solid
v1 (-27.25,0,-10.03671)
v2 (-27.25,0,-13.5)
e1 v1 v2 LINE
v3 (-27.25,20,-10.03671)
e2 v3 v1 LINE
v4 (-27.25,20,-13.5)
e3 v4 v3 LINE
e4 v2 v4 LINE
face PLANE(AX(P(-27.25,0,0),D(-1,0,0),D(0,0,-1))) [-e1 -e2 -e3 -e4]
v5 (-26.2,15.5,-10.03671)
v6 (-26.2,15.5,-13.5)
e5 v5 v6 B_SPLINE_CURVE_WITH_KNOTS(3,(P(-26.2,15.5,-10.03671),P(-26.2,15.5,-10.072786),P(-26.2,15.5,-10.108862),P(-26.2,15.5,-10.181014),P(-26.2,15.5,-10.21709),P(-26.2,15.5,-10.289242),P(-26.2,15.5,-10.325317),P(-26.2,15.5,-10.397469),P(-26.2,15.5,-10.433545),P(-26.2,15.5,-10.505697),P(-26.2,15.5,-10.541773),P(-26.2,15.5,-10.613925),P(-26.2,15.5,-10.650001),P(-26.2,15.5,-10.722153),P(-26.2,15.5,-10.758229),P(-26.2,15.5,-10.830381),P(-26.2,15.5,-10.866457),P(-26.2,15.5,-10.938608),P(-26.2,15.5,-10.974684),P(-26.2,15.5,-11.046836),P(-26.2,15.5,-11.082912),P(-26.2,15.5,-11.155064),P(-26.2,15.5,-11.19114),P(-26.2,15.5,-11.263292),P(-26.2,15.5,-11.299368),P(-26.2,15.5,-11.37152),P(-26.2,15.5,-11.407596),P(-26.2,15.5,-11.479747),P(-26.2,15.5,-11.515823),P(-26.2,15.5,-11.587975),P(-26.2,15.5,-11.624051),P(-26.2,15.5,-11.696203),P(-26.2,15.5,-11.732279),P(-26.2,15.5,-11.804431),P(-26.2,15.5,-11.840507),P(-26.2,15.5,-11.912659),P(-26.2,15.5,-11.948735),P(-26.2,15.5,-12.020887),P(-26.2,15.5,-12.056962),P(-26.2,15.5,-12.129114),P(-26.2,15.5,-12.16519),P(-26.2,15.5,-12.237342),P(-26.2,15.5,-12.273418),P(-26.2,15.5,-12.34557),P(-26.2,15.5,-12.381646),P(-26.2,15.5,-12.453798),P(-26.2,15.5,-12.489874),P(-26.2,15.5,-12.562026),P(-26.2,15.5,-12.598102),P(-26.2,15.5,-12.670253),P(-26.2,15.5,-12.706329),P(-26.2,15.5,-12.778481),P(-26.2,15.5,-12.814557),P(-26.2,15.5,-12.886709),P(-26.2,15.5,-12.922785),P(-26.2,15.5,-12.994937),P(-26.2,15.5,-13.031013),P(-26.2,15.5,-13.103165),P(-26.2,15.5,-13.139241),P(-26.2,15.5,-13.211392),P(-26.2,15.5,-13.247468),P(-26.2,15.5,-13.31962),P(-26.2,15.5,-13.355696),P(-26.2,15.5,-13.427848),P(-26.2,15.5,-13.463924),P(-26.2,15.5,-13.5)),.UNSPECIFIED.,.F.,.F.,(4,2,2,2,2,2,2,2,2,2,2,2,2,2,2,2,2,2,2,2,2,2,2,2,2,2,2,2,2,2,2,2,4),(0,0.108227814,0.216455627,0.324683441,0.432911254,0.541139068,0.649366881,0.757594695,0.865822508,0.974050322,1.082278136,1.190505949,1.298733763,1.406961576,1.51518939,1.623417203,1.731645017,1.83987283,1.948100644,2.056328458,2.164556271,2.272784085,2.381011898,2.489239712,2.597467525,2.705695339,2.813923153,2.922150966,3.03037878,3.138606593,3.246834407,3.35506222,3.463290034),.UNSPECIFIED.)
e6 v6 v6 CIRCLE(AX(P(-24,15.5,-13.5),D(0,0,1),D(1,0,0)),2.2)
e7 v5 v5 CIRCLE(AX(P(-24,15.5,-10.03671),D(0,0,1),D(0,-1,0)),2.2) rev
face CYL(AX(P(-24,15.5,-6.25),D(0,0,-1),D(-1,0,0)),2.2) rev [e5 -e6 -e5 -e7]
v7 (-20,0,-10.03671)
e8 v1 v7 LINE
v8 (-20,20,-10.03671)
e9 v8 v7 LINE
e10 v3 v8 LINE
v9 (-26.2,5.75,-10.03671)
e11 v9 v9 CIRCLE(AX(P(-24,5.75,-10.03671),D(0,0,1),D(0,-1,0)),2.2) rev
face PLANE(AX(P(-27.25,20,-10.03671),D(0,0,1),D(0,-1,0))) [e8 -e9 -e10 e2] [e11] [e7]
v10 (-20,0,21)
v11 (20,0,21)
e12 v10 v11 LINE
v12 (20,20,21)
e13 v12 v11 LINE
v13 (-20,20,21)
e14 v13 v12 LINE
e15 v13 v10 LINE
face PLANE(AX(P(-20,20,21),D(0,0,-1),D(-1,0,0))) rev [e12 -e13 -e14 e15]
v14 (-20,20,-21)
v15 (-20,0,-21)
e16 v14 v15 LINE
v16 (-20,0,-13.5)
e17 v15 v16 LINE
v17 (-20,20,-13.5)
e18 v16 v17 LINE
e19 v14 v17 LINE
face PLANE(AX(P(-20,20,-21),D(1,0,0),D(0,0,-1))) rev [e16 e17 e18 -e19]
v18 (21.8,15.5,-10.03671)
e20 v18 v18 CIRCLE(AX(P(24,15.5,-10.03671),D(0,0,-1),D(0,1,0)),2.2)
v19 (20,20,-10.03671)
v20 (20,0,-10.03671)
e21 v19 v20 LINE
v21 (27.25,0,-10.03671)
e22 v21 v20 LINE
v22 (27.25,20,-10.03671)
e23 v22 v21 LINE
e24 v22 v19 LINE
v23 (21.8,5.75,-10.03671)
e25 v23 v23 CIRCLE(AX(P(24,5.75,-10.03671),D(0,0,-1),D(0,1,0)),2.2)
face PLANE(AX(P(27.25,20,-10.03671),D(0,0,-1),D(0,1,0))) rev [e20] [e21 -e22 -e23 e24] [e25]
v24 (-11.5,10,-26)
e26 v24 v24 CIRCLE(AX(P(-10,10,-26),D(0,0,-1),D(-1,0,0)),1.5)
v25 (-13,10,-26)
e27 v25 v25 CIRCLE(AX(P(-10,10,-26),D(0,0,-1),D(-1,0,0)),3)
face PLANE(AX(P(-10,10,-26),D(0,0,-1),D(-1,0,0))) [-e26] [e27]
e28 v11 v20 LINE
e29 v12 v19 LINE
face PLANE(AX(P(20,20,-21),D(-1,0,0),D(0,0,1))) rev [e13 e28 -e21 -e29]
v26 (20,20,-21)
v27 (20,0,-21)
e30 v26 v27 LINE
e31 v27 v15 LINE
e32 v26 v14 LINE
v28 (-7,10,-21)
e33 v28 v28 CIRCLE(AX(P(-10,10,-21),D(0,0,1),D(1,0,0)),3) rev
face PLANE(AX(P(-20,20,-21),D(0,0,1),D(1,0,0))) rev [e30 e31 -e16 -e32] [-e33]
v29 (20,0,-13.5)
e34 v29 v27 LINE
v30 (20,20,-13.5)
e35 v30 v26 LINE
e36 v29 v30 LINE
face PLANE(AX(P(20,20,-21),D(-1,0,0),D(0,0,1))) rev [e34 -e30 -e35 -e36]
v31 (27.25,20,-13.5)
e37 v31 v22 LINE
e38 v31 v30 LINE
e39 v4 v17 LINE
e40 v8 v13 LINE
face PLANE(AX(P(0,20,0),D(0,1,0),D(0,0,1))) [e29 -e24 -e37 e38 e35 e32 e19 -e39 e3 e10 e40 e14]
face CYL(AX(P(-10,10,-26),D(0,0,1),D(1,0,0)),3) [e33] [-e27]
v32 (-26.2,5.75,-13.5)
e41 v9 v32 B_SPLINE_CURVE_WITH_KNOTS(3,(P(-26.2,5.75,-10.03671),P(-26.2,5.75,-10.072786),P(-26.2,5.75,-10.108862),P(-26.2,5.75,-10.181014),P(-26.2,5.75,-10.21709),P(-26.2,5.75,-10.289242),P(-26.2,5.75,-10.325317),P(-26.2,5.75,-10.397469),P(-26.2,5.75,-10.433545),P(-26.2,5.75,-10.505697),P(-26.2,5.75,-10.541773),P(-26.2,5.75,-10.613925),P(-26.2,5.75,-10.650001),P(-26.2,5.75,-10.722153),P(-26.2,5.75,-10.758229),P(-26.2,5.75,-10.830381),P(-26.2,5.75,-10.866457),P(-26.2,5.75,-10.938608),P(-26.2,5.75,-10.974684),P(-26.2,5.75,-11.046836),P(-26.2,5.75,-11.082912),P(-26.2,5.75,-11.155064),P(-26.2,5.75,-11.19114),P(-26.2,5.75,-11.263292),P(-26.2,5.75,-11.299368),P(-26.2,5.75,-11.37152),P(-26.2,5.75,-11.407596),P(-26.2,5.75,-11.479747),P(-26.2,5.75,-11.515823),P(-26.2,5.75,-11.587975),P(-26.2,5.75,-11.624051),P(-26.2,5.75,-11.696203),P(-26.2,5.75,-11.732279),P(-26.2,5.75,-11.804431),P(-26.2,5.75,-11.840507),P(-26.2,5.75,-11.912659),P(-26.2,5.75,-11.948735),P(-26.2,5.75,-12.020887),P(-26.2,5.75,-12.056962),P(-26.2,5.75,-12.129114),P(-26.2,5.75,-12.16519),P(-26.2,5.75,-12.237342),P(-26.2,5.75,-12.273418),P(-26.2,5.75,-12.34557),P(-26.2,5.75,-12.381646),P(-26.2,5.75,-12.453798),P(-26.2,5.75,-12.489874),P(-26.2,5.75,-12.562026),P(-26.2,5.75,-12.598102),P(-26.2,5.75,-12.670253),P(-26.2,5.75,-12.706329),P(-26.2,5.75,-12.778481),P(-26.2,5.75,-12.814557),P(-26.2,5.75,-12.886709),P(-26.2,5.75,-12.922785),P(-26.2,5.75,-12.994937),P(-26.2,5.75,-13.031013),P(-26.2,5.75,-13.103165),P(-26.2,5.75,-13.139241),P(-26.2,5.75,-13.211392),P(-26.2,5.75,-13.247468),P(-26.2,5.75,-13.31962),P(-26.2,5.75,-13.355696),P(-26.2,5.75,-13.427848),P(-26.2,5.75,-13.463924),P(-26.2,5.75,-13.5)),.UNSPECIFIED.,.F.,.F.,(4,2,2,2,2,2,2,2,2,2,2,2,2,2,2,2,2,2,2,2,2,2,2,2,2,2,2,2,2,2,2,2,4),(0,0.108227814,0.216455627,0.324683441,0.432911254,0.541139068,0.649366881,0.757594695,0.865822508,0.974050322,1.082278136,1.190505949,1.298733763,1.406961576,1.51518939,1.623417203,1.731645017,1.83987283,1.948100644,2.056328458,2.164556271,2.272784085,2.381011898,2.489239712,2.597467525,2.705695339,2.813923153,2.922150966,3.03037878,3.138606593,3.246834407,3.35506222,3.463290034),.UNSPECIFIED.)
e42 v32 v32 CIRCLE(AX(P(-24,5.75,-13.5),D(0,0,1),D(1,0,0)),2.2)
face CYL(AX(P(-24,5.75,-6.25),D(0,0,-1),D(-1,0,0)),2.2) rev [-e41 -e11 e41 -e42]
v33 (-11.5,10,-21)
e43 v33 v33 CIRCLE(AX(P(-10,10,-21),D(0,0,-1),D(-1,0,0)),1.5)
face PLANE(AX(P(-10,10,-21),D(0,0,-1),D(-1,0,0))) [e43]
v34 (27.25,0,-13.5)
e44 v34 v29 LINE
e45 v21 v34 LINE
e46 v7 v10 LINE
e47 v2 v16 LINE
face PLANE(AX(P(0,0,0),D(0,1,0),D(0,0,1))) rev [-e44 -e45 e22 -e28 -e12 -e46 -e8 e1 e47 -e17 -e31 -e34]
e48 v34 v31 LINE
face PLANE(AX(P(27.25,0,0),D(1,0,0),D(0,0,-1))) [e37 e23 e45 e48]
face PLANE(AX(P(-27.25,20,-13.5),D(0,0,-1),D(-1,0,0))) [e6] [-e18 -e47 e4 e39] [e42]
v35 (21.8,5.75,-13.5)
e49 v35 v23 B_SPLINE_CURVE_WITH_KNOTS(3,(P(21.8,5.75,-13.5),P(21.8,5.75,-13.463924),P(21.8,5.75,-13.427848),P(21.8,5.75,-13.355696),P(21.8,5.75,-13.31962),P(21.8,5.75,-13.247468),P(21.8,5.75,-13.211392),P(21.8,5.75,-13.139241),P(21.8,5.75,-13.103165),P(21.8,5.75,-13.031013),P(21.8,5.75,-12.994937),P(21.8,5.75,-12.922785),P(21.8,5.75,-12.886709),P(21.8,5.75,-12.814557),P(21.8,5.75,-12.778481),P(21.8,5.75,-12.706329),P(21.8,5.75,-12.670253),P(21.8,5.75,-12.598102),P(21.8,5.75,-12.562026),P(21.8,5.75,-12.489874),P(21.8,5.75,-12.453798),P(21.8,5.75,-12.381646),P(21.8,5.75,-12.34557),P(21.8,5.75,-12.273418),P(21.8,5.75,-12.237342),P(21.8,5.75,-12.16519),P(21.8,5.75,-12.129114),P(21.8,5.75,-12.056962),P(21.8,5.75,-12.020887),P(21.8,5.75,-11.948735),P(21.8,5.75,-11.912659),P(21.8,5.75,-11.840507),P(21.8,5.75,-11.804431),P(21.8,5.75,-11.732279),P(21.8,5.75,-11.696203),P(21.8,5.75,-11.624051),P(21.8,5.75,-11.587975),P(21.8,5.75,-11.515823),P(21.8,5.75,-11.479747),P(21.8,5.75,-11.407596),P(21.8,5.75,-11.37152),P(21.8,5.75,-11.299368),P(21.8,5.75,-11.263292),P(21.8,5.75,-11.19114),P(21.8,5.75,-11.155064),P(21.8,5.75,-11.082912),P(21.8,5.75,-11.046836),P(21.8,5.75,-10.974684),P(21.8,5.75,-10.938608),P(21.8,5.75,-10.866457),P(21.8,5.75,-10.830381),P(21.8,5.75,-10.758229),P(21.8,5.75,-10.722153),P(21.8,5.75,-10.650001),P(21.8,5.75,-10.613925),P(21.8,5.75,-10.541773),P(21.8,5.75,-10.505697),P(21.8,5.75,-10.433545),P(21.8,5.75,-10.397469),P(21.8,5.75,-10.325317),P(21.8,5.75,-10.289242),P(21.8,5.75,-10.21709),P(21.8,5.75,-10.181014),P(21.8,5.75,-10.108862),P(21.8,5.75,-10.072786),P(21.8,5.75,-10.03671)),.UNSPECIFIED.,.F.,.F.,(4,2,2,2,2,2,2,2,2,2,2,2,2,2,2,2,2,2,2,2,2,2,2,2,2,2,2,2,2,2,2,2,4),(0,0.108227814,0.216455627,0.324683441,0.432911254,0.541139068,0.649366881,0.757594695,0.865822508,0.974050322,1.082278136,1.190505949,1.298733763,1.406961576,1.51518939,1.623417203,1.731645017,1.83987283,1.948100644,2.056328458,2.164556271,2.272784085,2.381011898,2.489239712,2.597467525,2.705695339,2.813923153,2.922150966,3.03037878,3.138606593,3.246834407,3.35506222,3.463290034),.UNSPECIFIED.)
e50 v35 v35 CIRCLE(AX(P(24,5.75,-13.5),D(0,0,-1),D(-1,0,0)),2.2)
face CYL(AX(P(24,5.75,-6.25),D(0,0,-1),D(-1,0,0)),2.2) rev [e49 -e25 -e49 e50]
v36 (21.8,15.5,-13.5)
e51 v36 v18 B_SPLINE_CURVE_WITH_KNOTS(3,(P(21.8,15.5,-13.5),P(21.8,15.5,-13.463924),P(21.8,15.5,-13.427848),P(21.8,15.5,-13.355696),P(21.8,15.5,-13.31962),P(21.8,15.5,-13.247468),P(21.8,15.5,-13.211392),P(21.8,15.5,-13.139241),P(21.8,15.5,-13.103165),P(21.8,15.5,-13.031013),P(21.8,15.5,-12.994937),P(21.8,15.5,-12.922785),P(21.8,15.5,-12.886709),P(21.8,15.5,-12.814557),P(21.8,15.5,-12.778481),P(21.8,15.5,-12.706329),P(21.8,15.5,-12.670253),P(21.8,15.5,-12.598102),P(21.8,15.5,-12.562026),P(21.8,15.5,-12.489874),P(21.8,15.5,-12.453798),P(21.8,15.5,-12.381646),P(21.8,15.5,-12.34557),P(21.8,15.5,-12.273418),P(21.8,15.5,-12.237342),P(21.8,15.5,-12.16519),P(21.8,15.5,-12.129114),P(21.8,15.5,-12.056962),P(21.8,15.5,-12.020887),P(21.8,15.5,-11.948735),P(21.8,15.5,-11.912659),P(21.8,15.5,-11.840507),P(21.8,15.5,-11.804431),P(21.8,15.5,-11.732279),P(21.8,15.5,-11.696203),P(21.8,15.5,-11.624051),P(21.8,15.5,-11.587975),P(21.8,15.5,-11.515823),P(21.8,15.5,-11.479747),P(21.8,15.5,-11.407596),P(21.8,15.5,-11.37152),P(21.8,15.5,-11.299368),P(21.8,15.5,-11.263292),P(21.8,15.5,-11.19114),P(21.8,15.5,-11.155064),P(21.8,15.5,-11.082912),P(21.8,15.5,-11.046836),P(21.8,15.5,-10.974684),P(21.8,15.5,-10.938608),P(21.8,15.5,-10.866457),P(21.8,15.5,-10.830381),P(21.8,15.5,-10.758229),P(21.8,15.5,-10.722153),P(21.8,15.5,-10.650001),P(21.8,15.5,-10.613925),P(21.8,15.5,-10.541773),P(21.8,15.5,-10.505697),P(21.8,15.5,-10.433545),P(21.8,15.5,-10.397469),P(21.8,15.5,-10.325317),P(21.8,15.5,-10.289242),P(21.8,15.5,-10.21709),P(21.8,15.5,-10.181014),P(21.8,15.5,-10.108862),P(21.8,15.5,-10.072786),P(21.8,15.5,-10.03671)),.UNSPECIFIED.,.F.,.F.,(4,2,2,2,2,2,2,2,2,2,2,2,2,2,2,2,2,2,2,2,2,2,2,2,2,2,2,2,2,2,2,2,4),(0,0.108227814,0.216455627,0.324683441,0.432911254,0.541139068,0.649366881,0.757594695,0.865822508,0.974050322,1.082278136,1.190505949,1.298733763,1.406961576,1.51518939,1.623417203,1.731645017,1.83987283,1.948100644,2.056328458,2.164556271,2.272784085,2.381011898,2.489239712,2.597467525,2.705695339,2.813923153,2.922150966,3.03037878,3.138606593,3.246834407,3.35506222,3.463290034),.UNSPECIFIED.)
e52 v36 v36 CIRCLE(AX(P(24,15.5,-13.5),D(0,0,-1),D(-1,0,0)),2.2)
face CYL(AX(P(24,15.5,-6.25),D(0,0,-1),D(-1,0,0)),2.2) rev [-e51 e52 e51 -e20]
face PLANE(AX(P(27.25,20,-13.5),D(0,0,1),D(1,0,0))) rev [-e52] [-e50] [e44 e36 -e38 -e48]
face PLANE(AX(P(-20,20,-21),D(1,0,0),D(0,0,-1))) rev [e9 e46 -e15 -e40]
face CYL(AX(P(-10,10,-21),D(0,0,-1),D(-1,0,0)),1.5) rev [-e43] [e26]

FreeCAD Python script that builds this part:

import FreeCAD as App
import Part
import Sketcher
from FreeCAD import Vector

doc = App.newDocument("Part")
body = doc.addObject("PartDesign::Body", "Body")

sketch1 = body.newObject("Sketcher::SketchObject", "Sketch")
sketch1.AttachmentSupport = (doc.getObject("XZ_Plane"), [""])
sketch1.MapMode = "FlatFace"
sketch1.addGeometry([
    Part.LineSegment(Vector(-20, -21, 0), Vector(-20, 21, 0)),
    Part.LineSegment(Vector(-20, 21, 0), Vector(20, 21, 0)),
    Part.LineSegment(Vector(20, 21, 0), Vector(20, -21, 0)),
    Part.LineSegment(Vector(20, -21, 0), Vector(-20, -21, 0)),
], False)
sketch1.addConstraint([
    Sketcher.Constraint("Coincident", 0, 2, 1, 1),
    Sketcher.Constraint("Coincident", 1, 2, 2, 1),
    Sketcher.Constraint("Coincident", 2, 2, 3, 1),
    Sketcher.Constraint("Coincident", 3, 2, 0, 1),
    Sketcher.Constraint("Vertical", 0),
    Sketcher.Constraint("Horizontal", 1),
    Sketcher.Constraint("Vertical", 2),
    Sketcher.Constraint("Horizontal", 3),
    Sketcher.Constraint("Symmetric", 0, 2, 2, 2, -1, 1),
    Sketcher.Constraint("DistanceX", 1, 1, 1, 2, 40.0),
    Sketcher.Constraint("DistanceY", 0, 1, 0, 2, 42.0),
])
pad1 = body.newObject("PartDesign::Pad", "Pad")
pad1.Profile = sketch1
pad1.Length = 20
pad1.Reversed = True

sketch2 = body.newObject("Sketcher::SketchObject", "Sketch001")
sketch2.AttachmentSupport = (doc.getObject("YZ_Plane"), [""])
sketch2.MapMode = "FlatFace"
sketch2.AttachmentOffset = App.Placement(Vector(0, 0, 20), App.Rotation())
sketch2.addGeometry([
    Part.LineSegment(Vector(20, -10, 0), Vector(0, -10, 0)),
    Part.LineSegment(Vector(0, -10, 0), Vector(0, -13.5, 0)),
    Part.LineSegment(Vector(0, -13.5, 0), Vector(20, -13.5, 0)),
    Part.LineSegment(Vector(20, -13.5, 0), Vector(20, -10, 0)),
], False)
sketch2.addConstraint([
    Sketcher.Constraint("Coincident", 0, 2, 1, 1),
    Sketcher.Constraint("Coincident", 1, 2, 2, 1),
    Sketcher.Constraint("Coincident", 2, 2, 3, 1),
    Sketcher.Constraint("Coincident", 3, 2, 0, 1),
    Sketcher.Constraint("Horizontal", 0),
    Sketcher.Constraint("Vertical", 1),
    Sketcher.Constraint("Horizontal", 2),
    Sketcher.Constraint("Vertical", 3),
    Sketcher.Constraint("PointOnObject", 0, 2, -2),
    Sketcher.Constraint("DistanceX", 0, 2, 0, 1, 20.0),
    Sketcher.Constraint("DistanceY", 1, 2, -1, 1, 13.5),
    Sketcher.Constraint("DistanceY", 1, 2, 1, 1, 3.46329),
])
pad2 = body.newObject("PartDesign::Pad", "Pad001")
pad2.Profile = sketch2
pad2.Length = 7.25

sketch3 = body.newObject("Sketcher::SketchObject", "Sketch002")
sketch3.AttachmentSupport = (doc.getObject("XY_Plane"), [""])
sketch3.MapMode = "FlatFace"
sketch3.AttachmentOffset = App.Placement(Vector(0, 0, -13.5), App.Rotation())
sketch3.addGeometry([
    Part.Circle(Vector(24, 15.5, 0), Vector(0, 0, 1), 2.2),
    Part.Circle(Vector(24, 5.8, 0), Vector(0, 0, 1), 2.2),
], False)
sketch3.addConstraint([
    Sketcher.Constraint("Equal", 0, 1),
    Sketcher.Constraint("Vertical", 0, 3, 1, 3),
    Sketcher.Constraint("Diameter", 0, 4.4),
    Sketcher.Constraint("DistanceX", -1, 1, 0, 3, 24.0),
    Sketcher.Constraint("DistanceY", -1, 1, 0, 3, 15.5),
    Sketcher.Constraint("DistanceY", -1, 1, 1, 3, 5.75),
])
pocket1 = body.newObject("PartDesign::Pocket", "Pocket")
pocket1.Profile = sketch3
pocket1.Length = 7.25
pocket1.Reversed = True
doc.recompute()

mirrored = body.newObject("PartDesign::Mirrored", "Mirrored")
mirrored.Originals = [pad2, pocket1]
mirrored.MirrorPlane = (doc.getObject("YZ_Plane"), [""])
body.Tip = mirrored

sketch4 = body.newObject("Sketcher::SketchObject", "Sketch003")
sketch4.AttachmentSupport = (doc.getObject("XY_Plane"), [""])
sketch4.MapMode = "FlatFace"
sketch4.AttachmentOffset = App.Placement(Vector(0, 0, -21), App.Rotation())
sketch4.addGeometry(Part.Circle(Vector(-10, 10, 0), Vector(0, 0, 1), 3), False)
sketch4.addConstraint([
    Sketcher.Constraint("Diameter", 0, 6.0),
    Sketcher.Constraint("DistanceX", 0, 3, -1, 1, 10.0),
    Sketcher.Constraint("DistanceY", -1, 1, 0, 3, 10.0),
])
pad3 = body.newObject("PartDesign::Pad", "Pad002")
pad3.Profile = sketch4
pad3.Length = 5
pad3.Reversed = True

sketch5 = body.newObject("Sketcher::SketchObject", "Sketch004")
sketch5.AttachmentSupport = (doc.getObject("XY_Plane"), [""])
sketch5.MapMode = "FlatFace"
sketch5.AttachmentOffset = App.Placement(Vector(0, 0, -26), App.Rotation())
sketch5.addGeometry(Part.Circle(Vector(-10, 10, 0), Vector(0, 0, 1), 1.5), False)
sketch5.addConstraint([
    Sketcher.Constraint("Diameter", 0, 3.0),
    Sketcher.Constraint("DistanceX", 0, 3, -1, 1, 10.0),
    Sketcher.Constraint("DistanceY", -1, 1, 0, 3, 10.0),
])
pocket2 = body.newObject("PartDesign::Pocket", "Pocket001")
pocket2.Profile = sketch5
pocket2.Length = 5
pocket2.Reversed = True

doc.recompute()
